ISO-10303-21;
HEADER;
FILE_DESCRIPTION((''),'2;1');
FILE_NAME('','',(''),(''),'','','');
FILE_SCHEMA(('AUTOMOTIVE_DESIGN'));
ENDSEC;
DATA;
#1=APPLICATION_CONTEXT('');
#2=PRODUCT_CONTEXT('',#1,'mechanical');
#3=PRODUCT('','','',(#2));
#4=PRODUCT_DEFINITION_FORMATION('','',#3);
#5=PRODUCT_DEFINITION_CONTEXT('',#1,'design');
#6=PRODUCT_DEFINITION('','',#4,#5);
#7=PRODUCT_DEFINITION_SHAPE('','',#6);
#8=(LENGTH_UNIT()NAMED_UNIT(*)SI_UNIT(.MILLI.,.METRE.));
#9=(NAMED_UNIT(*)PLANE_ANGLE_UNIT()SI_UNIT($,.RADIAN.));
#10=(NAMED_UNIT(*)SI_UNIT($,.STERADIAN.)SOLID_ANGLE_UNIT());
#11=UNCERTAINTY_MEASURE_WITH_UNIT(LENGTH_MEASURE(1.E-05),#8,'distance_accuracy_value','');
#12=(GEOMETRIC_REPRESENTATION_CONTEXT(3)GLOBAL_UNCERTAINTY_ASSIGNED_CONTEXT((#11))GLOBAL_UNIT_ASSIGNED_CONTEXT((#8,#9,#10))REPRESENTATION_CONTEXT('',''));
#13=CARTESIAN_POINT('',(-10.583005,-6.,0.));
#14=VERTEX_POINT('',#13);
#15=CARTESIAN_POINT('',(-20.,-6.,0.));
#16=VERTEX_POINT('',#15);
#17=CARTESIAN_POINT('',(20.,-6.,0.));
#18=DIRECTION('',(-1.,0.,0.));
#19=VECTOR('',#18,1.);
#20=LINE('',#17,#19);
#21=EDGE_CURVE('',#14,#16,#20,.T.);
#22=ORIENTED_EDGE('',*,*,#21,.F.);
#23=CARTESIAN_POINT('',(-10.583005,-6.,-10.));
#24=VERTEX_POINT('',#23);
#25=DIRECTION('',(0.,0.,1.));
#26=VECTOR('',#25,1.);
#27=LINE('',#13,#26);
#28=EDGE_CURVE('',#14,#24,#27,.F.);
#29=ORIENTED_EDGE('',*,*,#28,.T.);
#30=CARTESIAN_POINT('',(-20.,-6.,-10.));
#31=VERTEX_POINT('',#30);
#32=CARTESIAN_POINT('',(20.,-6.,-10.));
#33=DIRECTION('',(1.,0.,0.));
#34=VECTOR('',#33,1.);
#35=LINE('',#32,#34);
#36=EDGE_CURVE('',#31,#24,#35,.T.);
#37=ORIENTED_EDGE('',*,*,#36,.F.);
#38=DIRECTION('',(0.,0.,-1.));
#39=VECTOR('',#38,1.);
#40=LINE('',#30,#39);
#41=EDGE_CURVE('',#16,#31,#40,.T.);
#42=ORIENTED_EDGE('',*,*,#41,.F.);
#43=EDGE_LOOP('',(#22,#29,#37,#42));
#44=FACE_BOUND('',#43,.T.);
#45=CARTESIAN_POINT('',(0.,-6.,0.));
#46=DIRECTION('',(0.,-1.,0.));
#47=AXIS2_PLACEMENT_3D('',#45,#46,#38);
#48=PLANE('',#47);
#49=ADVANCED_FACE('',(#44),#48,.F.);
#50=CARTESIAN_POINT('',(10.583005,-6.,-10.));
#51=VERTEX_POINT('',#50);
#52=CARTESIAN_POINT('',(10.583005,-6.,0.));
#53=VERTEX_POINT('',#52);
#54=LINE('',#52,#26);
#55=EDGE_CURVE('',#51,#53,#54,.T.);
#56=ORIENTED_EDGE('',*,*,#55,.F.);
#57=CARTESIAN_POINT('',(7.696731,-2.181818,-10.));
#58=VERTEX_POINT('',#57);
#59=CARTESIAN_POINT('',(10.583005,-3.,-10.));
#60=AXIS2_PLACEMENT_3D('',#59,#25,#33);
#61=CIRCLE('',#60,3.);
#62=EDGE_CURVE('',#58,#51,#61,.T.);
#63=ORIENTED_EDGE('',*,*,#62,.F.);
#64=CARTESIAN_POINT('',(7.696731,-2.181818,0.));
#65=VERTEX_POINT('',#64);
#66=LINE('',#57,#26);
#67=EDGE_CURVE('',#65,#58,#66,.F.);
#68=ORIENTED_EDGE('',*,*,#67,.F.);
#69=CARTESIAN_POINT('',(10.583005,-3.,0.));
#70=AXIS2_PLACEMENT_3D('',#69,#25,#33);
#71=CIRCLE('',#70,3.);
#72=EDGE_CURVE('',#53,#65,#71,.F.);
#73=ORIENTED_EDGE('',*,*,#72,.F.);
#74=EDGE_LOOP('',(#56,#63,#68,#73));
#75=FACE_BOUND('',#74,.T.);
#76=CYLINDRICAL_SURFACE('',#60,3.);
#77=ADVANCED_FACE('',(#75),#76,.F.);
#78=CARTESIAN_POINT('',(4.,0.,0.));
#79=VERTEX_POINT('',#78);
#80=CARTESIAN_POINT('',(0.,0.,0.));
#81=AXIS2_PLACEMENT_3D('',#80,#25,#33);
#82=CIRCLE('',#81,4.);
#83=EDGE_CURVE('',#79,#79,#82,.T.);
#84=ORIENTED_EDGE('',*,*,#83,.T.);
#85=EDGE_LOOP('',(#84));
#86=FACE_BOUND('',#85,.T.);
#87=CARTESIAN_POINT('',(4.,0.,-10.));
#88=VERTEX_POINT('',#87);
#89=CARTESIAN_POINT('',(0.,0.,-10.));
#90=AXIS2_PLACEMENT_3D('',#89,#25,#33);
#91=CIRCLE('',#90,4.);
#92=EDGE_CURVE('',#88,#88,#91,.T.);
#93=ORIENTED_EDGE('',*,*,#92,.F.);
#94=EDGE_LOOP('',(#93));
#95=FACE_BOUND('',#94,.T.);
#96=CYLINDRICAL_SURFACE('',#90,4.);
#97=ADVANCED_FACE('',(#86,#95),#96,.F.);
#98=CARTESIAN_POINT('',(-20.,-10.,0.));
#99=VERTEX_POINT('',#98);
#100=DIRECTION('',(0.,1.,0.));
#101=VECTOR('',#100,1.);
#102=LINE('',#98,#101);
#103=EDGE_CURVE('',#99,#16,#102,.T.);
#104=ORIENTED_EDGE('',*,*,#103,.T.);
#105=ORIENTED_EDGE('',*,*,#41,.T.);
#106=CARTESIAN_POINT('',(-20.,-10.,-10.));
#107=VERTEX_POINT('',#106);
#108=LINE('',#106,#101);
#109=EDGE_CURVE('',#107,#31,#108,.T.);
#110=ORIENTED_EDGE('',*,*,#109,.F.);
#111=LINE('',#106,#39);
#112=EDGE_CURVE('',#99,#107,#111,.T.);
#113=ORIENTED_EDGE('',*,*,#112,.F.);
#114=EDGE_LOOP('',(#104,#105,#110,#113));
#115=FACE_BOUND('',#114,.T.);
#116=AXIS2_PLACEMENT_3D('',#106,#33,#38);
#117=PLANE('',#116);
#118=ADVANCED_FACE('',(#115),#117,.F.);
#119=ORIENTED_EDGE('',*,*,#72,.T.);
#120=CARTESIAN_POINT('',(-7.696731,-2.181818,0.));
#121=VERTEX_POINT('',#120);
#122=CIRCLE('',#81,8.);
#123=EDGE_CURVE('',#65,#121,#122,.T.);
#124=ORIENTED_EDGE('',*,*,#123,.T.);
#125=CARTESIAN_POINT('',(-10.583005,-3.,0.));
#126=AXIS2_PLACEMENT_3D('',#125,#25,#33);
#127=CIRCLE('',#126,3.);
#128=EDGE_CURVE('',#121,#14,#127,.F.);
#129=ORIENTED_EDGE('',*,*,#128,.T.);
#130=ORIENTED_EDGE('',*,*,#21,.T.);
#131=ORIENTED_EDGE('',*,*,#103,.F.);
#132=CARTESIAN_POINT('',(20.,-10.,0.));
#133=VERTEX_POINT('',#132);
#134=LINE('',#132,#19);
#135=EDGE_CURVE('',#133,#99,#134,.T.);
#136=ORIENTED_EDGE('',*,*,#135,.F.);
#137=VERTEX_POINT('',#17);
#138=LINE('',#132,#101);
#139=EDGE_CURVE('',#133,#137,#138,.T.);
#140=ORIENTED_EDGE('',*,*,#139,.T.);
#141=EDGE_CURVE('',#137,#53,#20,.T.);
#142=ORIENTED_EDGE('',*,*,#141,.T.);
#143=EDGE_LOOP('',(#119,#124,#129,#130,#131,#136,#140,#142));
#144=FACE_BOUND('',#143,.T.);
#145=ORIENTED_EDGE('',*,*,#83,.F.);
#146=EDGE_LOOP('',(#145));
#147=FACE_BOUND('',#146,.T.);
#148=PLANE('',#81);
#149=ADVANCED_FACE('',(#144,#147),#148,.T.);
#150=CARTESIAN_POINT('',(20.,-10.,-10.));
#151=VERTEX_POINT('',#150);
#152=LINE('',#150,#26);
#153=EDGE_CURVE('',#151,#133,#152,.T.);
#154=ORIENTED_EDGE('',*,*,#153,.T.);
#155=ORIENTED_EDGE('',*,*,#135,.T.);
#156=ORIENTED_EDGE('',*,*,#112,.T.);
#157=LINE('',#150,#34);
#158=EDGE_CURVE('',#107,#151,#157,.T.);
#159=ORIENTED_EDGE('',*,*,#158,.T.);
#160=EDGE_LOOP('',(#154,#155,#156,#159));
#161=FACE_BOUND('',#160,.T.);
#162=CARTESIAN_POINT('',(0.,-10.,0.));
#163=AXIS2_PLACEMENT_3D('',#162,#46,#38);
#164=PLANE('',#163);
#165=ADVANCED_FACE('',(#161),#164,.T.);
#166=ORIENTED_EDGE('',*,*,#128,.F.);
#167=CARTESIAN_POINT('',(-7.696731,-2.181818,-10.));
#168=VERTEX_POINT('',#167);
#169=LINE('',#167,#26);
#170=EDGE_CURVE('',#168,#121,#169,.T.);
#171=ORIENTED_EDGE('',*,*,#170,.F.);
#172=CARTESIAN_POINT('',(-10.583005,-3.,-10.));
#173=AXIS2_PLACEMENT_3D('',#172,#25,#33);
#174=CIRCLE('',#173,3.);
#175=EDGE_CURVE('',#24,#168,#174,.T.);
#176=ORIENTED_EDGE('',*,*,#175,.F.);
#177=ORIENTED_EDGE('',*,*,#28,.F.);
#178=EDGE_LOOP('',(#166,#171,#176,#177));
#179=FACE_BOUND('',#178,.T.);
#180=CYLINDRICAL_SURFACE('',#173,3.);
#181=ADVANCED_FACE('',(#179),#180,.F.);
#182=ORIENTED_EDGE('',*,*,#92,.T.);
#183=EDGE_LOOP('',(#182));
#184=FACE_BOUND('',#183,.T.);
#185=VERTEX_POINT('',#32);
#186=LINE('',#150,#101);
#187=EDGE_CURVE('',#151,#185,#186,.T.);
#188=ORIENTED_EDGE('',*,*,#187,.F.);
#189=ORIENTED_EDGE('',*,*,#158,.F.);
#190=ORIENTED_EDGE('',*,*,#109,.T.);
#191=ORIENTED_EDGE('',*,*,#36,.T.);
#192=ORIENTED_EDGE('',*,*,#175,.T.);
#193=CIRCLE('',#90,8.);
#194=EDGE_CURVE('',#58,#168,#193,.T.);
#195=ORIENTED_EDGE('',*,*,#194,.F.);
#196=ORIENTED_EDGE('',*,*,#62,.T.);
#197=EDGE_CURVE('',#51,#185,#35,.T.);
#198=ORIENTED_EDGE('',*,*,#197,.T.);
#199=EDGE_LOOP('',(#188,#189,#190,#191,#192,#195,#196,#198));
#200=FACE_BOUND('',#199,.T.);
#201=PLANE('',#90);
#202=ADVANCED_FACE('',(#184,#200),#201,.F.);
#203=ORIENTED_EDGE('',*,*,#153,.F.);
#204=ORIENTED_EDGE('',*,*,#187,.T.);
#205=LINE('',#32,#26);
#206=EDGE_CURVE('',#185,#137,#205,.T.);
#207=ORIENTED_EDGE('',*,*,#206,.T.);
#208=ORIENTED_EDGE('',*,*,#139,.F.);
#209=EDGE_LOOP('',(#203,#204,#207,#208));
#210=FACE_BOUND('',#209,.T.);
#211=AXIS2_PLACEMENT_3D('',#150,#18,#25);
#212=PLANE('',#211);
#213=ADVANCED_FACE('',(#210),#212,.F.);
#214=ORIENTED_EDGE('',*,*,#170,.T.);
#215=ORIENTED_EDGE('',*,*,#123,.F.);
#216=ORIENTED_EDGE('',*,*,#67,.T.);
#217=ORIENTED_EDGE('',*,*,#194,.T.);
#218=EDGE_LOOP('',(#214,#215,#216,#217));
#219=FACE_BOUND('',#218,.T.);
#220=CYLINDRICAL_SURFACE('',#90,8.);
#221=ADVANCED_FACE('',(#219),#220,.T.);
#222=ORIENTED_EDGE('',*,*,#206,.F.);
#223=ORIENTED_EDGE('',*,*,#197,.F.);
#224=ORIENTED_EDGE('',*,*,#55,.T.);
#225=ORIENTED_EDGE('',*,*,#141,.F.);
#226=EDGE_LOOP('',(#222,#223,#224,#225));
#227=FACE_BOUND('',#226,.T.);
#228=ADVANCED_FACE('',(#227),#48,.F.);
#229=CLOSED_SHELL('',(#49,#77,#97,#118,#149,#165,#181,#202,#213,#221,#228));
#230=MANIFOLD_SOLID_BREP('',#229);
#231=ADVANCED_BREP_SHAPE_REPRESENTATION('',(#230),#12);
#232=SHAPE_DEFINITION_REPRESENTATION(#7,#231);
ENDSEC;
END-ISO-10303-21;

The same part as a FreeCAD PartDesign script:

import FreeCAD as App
import Part
import Sketcher
from FreeCAD import Vector


def edges_at(feature, points):
    """Names of the edges that pass closest to the given points."""
    edges = feature.Shape.Edges
    near = lambda p: min(range(len(edges)), key=lambda i: edges[i].distToShape(Part.Vertex(*p))[0])
    return sorted({f"Edge{near(p) + 1}" for p in points})

doc = App.newDocument("Part")
body = doc.addObject("PartDesign::Body", "Body")

sketch1 = body.newObject("Sketcher::SketchObject", "Sketch")
sketch1.AttachmentSupport = (doc.getObject("XY_Plane"), [""])
sketch1.MapMode = "FlatFace"
sketch1.addGeometry([
    Part.Circle(Vector(0, 0, 0), Vector(0, 0, 1), 8),
    Part.Circle(Vector(0, 0, 0), Vector(0, 0, 1), 4),
], False)
sketch1.addConstraint([
    Sketcher.Constraint("Coincident", 0, 3, -1, 1),
    Sketcher.Constraint("Coincident", 1, 3, -1, 1),
    Sketcher.Constraint("Diameter", 0, 16.0),
    Sketcher.Constraint("Diameter", 1, 8.0),
])
pad1 = body.newObject("PartDesign::Pad", "Pad")
pad1.Profile = sketch1
pad1.Length = 10
pad1.Reversed = True

sketch2 = body.newObject("Sketcher::SketchObject", "Sketch001")
sketch2.AttachmentSupport = (doc.getObject("XZ_Plane"), [""])
sketch2.MapMode = "FlatFace"
sketch2.AttachmentOffset = App.Placement(Vector(0, 0, 8), App.Rotation())
sketch2.addGeometry([
    Part.LineSegment(Vector(20, -10, 0), Vector(20, 0, 0)),
    Part.LineSegment(Vector(20, 0, 0), Vector(-20, 0, 0)),
    Part.LineSegment(Vector(-20, 0, 0), Vector(-20, -10, 0)),
    Part.LineSegment(Vector(-20, -10, 0), Vector(20, -10, 0)),
], False)
sketch2.addConstraint([
    Sketcher.Constraint("Coincident", 0, 2, 1, 1),
    Sketcher.Constraint("Coincident", 1, 2, 2, 1),
    Sketcher.Constraint("Coincident", 2, 2, 3, 1),
    Sketcher.Constraint("Coincident", 3, 2, 0, 1),
    Sketcher.Constraint("Vertical", 0),
    Sketcher.Constraint("Horizontal", 1),
    Sketcher.Constraint("Vertical", 2),
    Sketcher.Constraint("Horizontal", 3),
    Sketcher.Constraint("Symmetric", 0, 2, 1, 2, -1, 1),
    Sketcher.Constraint("DistanceX", 1, 2, 1, 1, 40.0),
    Sketcher.Constraint("DistanceY", 0, 1, 0, 2, 10.0),
])
pad2 = body.newObject("PartDesign::Pad", "Pad001")
pad2.Profile = sketch2
pad2.Type = "TwoLengths"
pad2.Length = 2
pad2.Length2 = 2
doc.recompute()

fillet = body.newObject("PartDesign::Fillet", "Fillet")
fillet.Base = (pad2, edges_at(pad2, [(5.292, -6, -5), (-5.292, -6, -5)]))
fillet.Radius = 3

doc.recompute()
